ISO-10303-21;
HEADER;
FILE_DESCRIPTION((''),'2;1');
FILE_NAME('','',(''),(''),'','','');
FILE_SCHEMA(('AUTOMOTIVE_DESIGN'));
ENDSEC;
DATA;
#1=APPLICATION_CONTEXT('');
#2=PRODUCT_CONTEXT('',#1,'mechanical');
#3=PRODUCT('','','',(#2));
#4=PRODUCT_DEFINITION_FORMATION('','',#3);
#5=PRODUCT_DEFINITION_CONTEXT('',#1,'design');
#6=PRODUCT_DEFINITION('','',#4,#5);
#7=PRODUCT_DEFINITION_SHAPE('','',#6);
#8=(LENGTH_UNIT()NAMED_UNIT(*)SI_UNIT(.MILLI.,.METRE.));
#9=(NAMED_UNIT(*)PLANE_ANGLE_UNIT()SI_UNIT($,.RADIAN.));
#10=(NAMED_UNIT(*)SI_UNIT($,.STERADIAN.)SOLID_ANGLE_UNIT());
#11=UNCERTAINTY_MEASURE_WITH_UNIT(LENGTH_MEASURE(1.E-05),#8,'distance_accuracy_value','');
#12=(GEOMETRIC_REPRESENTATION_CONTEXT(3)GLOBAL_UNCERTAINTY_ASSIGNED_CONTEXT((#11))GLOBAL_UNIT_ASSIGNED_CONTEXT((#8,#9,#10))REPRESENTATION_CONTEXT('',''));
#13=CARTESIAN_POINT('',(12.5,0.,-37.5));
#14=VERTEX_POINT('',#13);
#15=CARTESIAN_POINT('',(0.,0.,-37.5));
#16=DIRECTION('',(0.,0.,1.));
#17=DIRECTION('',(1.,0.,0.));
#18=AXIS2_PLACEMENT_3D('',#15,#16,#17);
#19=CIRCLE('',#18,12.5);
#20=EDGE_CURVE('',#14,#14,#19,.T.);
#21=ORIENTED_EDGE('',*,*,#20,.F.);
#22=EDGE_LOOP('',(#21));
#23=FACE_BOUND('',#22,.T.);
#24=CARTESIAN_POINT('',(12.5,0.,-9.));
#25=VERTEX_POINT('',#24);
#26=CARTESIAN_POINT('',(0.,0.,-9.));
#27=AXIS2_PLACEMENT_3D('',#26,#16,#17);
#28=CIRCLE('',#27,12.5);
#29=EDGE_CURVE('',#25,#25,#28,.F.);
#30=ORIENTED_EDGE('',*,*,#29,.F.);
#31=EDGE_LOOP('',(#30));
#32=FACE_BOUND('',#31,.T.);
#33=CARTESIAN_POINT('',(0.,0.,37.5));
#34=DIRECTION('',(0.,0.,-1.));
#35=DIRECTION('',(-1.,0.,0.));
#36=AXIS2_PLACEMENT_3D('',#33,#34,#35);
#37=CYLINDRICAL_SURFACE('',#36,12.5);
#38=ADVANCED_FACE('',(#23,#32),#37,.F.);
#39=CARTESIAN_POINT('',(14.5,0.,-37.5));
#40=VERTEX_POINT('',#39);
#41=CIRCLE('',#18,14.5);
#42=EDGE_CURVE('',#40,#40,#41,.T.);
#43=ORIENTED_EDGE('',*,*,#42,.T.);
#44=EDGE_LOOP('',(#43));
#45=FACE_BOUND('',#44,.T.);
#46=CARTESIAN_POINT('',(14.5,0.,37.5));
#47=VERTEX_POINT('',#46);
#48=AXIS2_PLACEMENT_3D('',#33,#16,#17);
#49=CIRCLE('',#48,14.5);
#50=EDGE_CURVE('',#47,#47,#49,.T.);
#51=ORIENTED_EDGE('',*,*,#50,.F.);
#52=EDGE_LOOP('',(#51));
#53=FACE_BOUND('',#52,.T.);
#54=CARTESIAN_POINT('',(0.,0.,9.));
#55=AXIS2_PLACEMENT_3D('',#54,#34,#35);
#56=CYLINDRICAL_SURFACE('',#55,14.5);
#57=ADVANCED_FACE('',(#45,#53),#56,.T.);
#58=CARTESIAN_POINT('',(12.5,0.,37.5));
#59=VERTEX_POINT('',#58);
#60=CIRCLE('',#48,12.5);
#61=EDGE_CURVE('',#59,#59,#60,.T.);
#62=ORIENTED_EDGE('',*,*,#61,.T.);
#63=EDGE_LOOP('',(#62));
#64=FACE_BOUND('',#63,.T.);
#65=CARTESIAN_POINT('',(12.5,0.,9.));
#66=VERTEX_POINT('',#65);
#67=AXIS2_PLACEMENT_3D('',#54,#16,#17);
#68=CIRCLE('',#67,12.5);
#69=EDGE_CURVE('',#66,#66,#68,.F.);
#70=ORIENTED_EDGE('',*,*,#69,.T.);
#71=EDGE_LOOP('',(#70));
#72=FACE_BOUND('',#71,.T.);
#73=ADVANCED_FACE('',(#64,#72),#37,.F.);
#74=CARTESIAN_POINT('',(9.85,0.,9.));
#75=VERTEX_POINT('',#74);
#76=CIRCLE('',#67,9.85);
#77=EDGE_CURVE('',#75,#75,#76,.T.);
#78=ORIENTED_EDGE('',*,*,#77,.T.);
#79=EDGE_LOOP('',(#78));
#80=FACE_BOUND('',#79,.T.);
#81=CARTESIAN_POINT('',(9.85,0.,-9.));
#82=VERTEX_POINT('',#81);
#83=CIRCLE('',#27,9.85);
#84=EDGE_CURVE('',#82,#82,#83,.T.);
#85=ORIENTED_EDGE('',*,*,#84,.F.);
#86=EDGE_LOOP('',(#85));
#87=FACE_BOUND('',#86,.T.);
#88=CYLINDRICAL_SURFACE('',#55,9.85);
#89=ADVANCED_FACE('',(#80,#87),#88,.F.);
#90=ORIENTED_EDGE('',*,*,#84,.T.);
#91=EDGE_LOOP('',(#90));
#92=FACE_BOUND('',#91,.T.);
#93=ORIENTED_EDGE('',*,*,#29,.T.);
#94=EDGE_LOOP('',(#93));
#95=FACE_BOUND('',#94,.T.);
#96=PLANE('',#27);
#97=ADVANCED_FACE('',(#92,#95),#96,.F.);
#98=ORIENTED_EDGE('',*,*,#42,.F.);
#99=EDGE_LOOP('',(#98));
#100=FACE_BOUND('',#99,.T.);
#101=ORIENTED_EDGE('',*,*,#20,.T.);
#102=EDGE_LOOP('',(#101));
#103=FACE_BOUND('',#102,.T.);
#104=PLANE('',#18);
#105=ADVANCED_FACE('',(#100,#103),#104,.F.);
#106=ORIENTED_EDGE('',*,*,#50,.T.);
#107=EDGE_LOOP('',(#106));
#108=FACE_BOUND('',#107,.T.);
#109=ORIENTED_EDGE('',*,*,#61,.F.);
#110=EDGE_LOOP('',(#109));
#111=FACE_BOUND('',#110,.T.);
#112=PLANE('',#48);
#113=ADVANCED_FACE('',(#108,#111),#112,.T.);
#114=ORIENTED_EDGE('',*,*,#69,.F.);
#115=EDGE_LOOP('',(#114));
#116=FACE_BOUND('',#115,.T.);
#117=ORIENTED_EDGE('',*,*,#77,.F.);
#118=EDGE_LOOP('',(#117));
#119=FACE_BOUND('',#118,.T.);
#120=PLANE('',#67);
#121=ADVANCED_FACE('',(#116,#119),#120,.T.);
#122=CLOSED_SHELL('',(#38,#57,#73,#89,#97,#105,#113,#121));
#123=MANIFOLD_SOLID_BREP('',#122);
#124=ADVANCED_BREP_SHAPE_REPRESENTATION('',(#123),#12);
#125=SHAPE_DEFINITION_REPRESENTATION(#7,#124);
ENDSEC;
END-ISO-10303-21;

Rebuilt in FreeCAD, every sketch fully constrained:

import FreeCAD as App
import Part
import Sketcher

V = App.Vector
Q = App.Units.Quantity

doc = App.newDocument("Part")
body = doc.addObject("PartDesign::Body", "Body")

sketch1 = body.newObject("Sketcher::SketchObject", "Sketch")
sketch1.AttachmentSupport = (doc.getObject("XY_Plane"), [""])
sketch1.MapMode = "FlatFace"
sketch1.addGeometry([
    Part.Circle(V(0, 0, 0), V(0, 0, 1), 14),
    Part.Circle(V(0, 0, 0), V(0, 0, 1), 10),
], False)
sketch1.addConstraint([
    Sketcher.Constraint("Coincident", 0, 3, -1, 1),
    Sketcher.Constraint("Coincident", 1, 3, -1, 1),
    Sketcher.Constraint("Diameter", 0, Q("29 mm")),
    Sketcher.Constraint("Diameter", 1, Q("19.7 mm")),
])
pad1 = body.newObject("PartDesign::Pad", "Pad")
pad1.Profile = sketch1
pad1.Length = 18
pad1.Midplane = True

sketch2 = body.newObject("Sketcher::SketchObject", "Sketch001")
sketch2.AttachmentSupport = (doc.getObject("XY_Plane"), [""])
sketch2.MapMode = "FlatFace"
sketch2.addGeometry([
    Part.Circle(V(0, 0, 0), V(0, 0, 1), 14),
    Part.Circle(V(0, 0, 0), V(0, 0, 1), 12),
], False)
sketch2.addConstraint([
    Sketcher.Constraint("Coincident", 0, 3, -1, 1),
    Sketcher.Constraint("Coincident", 1, 3, -1, 1),
    Sketcher.Constraint("Diameter", 0, Q("29 mm")),
    Sketcher.Constraint("Diameter", 1, Q("25 mm")),
])
pad2 = body.newObject("PartDesign::Pad", "Pad001")
pad2.Profile = sketch2
pad2.Length = 75
pad2.Midplane = True

doc.recompute()
